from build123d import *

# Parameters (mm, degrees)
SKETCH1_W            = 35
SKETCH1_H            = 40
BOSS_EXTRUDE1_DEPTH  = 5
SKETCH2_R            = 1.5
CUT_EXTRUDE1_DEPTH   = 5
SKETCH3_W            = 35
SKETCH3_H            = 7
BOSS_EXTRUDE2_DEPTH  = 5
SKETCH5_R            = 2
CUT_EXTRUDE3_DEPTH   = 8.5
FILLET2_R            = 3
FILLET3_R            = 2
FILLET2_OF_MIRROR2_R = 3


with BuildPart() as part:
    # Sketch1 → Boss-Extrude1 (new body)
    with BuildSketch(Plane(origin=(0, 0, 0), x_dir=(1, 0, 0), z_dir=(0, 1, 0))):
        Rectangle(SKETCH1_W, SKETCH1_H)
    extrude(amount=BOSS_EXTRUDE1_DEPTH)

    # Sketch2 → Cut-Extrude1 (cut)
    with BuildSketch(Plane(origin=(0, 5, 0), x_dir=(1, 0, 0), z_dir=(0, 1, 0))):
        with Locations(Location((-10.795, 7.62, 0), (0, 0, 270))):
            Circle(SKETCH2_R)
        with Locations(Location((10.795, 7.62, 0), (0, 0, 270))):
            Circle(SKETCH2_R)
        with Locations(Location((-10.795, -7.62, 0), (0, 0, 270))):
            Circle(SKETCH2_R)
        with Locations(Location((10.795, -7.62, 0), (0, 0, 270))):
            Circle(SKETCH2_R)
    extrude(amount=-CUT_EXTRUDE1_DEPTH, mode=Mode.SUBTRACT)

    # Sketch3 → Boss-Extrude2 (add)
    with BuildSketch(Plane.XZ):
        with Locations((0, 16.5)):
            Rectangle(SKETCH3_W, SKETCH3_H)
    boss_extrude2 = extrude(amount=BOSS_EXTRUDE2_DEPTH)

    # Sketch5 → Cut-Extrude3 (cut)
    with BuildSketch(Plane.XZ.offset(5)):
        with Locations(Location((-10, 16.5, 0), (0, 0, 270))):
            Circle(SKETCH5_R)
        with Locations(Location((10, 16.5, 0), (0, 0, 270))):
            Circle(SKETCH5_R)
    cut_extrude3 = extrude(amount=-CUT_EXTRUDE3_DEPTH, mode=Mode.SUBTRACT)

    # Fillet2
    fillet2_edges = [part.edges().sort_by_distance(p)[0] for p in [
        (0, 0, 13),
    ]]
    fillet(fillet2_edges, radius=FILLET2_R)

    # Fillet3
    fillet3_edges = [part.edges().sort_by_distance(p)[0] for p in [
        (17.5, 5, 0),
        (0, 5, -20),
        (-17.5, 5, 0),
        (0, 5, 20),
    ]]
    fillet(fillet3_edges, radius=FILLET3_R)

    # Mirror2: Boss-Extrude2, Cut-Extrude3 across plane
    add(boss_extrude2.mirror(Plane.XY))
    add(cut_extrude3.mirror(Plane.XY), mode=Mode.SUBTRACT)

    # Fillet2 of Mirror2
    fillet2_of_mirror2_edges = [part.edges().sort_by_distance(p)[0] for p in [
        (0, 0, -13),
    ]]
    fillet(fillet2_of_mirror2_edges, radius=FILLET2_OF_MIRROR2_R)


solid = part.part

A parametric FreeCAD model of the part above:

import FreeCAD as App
import Part
import Sketcher


def edges_at(feature, points):
    """Names of the edges that pass closest to the given points."""
    edges = feature.Shape.Edges
    near = lambda p: min(range(len(edges)), key=lambda i: edges[i].distToShape(Part.Vertex(*p))[0])
    return sorted({f"Edge{near(p) + 1}" for p in points})


def add_polygon(sketch, points):
    """Adds a closed chain of lines whose ends are joined by coincident constraints."""
    first, n = sketch.GeometryCount, len(points)
    for a, b in zip(points, points[1:] + points[:1]):
        sketch.addGeometry(Part.LineSegment(App.Vector(*a, 0), App.Vector(*b, 0)), False)
    for i in range(n):
        sketch.addConstraint(Sketcher.Constraint("Coincident", first + i, 2, first + (i + 1) % n, 1))

doc = App.newDocument("Part")
body = doc.addObject("PartDesign::Body", "Body")

sketch1 = doc.addObject("Sketcher::SketchObject", "Sketch")
body.addObject(sketch1)
sketch1.AttachmentSupport = (doc.XZ_Plane, [""])
sketch1.MapMode = "FlatFace"
add_polygon(sketch1, [(-18, -20), (-18, 20), (18, 20), (18, -20)])
sketch1.addConstraint(Sketcher.Constraint("Vertical", 0))
sketch1.addConstraint(Sketcher.Constraint("Horizontal", 1))
sketch1.addConstraint(Sketcher.Constraint("Vertical", 2))
sketch1.addConstraint(Sketcher.Constraint("Horizontal", 3))
sketch1.addConstraint(Sketcher.Constraint("Symmetric", 0, 2, 2, 2, -1, 1))
sketch1.addConstraint(Sketcher.Constraint("DistanceX", 1, 1, 1, 2, 35.0))
sketch1.addConstraint(Sketcher.Constraint("DistanceY", 0, 1, 0, 2, 40.0))
pad1 = doc.addObject("PartDesign::Pad", "Pad")
body.addObject(pad1)
pad1.Profile = sketch1
pad1.Length = 5
pad1.Reversed = True

sketch2 = doc.addObject("Sketcher::SketchObject", "Sketch001")
body.addObject(sketch2)
sketch2.AttachmentSupport = (doc.XZ_Plane, [""])
sketch2.MapMode = "FlatFace"
sketch2.AttachmentOffset = App.Placement(App.Vector(0, 0, -5), App.Rotation())
sketch2.addGeometry(Part.Circle(App.Vector(-10.8, -7.6, 0), App.Vector(0, 0, 1), 1.5), False)
sketch2.addGeometry(Part.Circle(App.Vector(10.8, -7.6, 0), App.Vector(0, 0, 1), 1.5), False)
sketch2.addGeometry(Part.Circle(App.Vector(-10.8, 7.6, 0), App.Vector(0, 0, 1), 1.5), False)
sketch2.addGeometry(Part.Circle(App.Vector(10.8, 7.6, 0), App.Vector(0, 0, 1), 1.5), False)
sketch2.addConstraint(Sketcher.Constraint("Equal", 0, 1))
sketch2.addConstraint(Sketcher.Constraint("Equal", 1, 2))
sketch2.addConstraint(Sketcher.Constraint("Equal", 2, 3))
sketch2.addConstraint(Sketcher.Constraint("Symmetric", 1, 3, 2, 3, -1, 1))
sketch2.addConstraint(Sketcher.Constraint("Symmetric", 0, 3, 3, 3, -1, 1))
sketch2.addConstraint(Sketcher.Constraint("Symmetric", 0, 3, 1, 3, -2))
sketch2.addConstraint(Sketcher.Constraint("Diameter", 0, 3.0))
sketch2.addConstraint(Sketcher.Constraint("DistanceY", 0, 3, -1, 1, 7.62))
sketch2.addConstraint(Sketcher.Constraint("DistanceX", 0, 3, 1, 3, 21.59))
pocket1 = doc.addObject("PartDesign::Pocket", "Pocket")
body.addObject(pocket1)
pocket1.Profile = sketch2
pocket1.Length = 5
pocket1.Reversed = True

sketch3 = doc.addObject("Sketcher::SketchObject", "Sketch002")
body.addObject(sketch3)
sketch3.AttachmentSupport = (doc.XZ_Plane, [""])
sketch3.MapMode = "FlatFace"
add_polygon(sketch3, [(-18, 20), (-18, 13), (18, 13), (18, 20)])
sketch3.addConstraint(Sketcher.Constraint("Vertical", 0))
sketch3.addConstraint(Sketcher.Constraint("Horizontal", 1))
sketch3.addConstraint(Sketcher.Constraint("Vertical", 2))
sketch3.addConstraint(Sketcher.Constraint("Horizontal", 3))
sketch3.addConstraint(Sketcher.Constraint("DistanceX", 1, 1, 1, 2, 35.0))
sketch3.addConstraint(Sketcher.Constraint("DistanceY", 0, 2, 0, 1, 7.0))
sketch3.addConstraint(Sketcher.Constraint("DistanceY", -1, 1, 0, 2, 13.0))
sketch3.addConstraint(Sketcher.Constraint("DistanceX", 0, 2, -1, 1, 17.5))
pad2 = doc.addObject("PartDesign::Pad", "Pad001")
body.addObject(pad2)
pad2.Profile = sketch3
pad2.Length = 5

sketch4 = doc.addObject("Sketcher::SketchObject", "Sketch003")
body.addObject(sketch4)
sketch4.AttachmentSupport = (doc.XZ_Plane, [""])
sketch4.MapMode = "FlatFace"
sketch4.AttachmentOffset = App.Placement(App.Vector(0, 0, 5), App.Rotation())
sketch4.addGeometry(Part.Circle(App.Vector(-10, 16.5, 0), App.Vector(0, 0, 1), 2), False)
sketch4.addGeometry(Part.Circle(App.Vector(10, 16.5, 0), App.Vector(0, 0, 1), 2), False)
sketch4.addConstraint(Sketcher.Constraint("Equal", 0, 1))
sketch4.addConstraint(Sketcher.Constraint("Symmetric", 0, 3, 1, 3, -2))
sketch4.addConstraint(Sketcher.Constraint("Diameter", 0, 4.0))
sketch4.addConstraint(Sketcher.Constraint("DistanceX", 0, 3, -1, 1, 10.0))
sketch4.addConstraint(Sketcher.Constraint("DistanceY", -1, 1, 0, 3, 16.5))
pocket2 = doc.addObject("PartDesign::Pocket", "Pocket001")
body.addObject(pocket2)
pocket2.Profile = sketch4
pocket2.Length = 8.5
doc.recompute()

fillet = doc.addObject("PartDesign::Fillet", "Fillet")
body.addObject(fillet)
fillet.Base = (pocket2, edges_at(pocket2, [(0, 0, 13)]))
fillet.Radius = 3
doc.recompute()

fillet2 = doc.addObject("PartDesign::Fillet", "Fillet001")
body.addObject(fillet2)
fillet2.Base = (fillet, edges_at(fillet, [
    (17.5, 5, 0),
    (0, 5, -20),
    (-17.5, 5, 0),
    (0, 5, 20),
]))
fillet2.Radius = 2
doc.recompute()

mirrored = doc.addObject("PartDesign::Mirrored", "Mirrored")
body.addObject(mirrored)
mirrored.Originals = [pad2, pocket2]
mirrored.MirrorPlane = (doc.XY_Plane, [""])
body.Tip = mirrored
doc.recompute()

fillet3 = doc.addObject("PartDesign::Fillet", "Fillet002")
body.addObject(fillet3)
fillet3.Base = (mirrored, edges_at(mirrored, [(0, 0, -13)]))
fillet3.Radius = 3

doc.recompute()
